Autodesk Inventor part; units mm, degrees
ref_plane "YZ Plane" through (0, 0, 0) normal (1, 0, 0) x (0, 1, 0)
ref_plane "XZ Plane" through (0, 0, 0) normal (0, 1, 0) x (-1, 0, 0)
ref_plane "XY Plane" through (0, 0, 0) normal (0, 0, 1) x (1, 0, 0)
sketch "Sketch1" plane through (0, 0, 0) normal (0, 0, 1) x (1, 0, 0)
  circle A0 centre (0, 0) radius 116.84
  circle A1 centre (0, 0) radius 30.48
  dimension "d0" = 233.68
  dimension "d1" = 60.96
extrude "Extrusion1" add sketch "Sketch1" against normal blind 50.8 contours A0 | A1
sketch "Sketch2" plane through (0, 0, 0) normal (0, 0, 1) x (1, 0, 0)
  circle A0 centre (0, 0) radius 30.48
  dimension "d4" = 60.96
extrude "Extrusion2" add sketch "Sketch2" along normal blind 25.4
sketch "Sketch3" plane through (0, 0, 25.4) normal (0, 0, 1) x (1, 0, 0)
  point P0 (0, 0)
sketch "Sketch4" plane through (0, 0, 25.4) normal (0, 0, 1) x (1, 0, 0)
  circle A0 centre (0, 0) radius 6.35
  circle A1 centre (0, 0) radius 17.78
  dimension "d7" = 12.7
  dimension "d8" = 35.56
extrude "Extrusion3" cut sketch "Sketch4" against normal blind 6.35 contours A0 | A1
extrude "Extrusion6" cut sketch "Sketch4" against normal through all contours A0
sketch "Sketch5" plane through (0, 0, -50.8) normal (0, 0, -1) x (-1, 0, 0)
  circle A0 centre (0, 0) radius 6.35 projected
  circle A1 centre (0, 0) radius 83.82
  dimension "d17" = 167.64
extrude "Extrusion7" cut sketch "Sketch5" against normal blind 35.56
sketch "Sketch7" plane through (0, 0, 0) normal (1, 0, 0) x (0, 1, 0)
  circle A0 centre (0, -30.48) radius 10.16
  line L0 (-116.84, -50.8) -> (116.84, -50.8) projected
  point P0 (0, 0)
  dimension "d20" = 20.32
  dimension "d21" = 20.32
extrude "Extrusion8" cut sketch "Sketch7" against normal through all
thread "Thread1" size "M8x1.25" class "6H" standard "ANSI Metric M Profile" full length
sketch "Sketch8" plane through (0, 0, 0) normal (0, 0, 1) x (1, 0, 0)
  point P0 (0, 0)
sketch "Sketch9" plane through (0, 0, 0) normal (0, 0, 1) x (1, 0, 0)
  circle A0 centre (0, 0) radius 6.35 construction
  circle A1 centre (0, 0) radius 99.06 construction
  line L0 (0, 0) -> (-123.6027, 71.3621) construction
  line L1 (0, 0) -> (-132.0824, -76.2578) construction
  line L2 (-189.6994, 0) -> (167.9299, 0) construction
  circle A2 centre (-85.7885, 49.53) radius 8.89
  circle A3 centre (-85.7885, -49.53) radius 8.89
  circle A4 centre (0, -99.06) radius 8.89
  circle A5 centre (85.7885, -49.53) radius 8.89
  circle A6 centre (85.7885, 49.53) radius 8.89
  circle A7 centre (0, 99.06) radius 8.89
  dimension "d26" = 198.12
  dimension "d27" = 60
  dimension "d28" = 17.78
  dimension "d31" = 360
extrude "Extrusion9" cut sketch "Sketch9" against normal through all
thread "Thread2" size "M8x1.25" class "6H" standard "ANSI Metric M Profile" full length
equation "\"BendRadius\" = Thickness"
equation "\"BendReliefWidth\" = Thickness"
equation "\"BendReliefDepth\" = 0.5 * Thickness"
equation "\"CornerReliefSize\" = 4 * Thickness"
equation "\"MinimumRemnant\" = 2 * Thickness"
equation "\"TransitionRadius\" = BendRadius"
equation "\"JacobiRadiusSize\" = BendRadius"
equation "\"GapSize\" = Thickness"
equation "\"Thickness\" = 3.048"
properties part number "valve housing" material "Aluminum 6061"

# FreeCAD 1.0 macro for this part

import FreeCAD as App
import Part
import Sketcher

V = App.Vector
Q = App.Units.Quantity

doc = App.newDocument("Part")
body = doc.addObject("PartDesign::Body", "Body")

sketch1 = body.newObject("Sketcher::SketchObject", "Sketch")
sketch1.AttachmentSupport = (doc.getObject("XY_Plane"), [""])
sketch1.MapMode = "FlatFace"
sketch1.addGeometry(Part.Circle(V(0, 0, 0), V(0, 0, 1), 117), False)
sketch1.addConstraint([
    Sketcher.Constraint("Coincident", 0, 3, -1, 1),
    Sketcher.Constraint("Diameter", 0, Q("9.2 in")),
])
pad1 = body.newObject("PartDesign::Pad", "Pad")
pad1.Profile = sketch1
pad1.Length = Q("2 in")
pad1.Reversed = True

sketch2 = body.newObject("Sketcher::SketchObject", "Sketch001")
sketch2.AttachmentSupport = (doc.getObject("XY_Plane"), [""])
sketch2.MapMode = "FlatFace"
sketch2.addGeometry(Part.Circle(V(0, 0, 0), V(0, 0, 1), 30), False)
sketch2.addConstraint([
    Sketcher.Constraint("Coincident", 0, 3, -1, 1),
    Sketcher.Constraint("Diameter", 0, Q("2.4 in")),
])
pad2 = body.newObject("PartDesign::Pad", "Pad001")
pad2.Profile = sketch2
pad2.Length = Q("1 in")

sketch3 = body.newObject("Sketcher::SketchObject", "Sketch002")
sketch3.AttachmentSupport = (doc.getObject("XY_Plane"), [""])
sketch3.MapMode = "FlatFace"
sketch3.AttachmentOffset = App.Placement(V(0, 0, 1 * 25.4), App.Rotation())
sketch3.addGeometry(Part.Circle(V(0, 0, 0), V(0, 0, 1), 18), False)
sketch3.addConstraint([
    Sketcher.Constraint("Coincident", 0, 3, -1, 1),
    Sketcher.Constraint("Diameter", 0, Q("1.4 in")),
])
pocket1 = body.newObject("PartDesign::Pocket", "Pocket")
pocket1.Profile = sketch3
pocket1.Length = Q("0.25 in")

sketch4 = body.newObject("Sketcher::SketchObject", "Sketch003")
sketch4.AttachmentSupport = (doc.getObject("XY_Plane"), [""])
sketch4.MapMode = "FlatFace"
sketch4.AttachmentOffset = App.Placement(V(0, 0, 1 * 25.4), App.Rotation())
sketch4.addGeometry(Part.Circle(V(0, 0, 0), V(0, 0, 1), 6), False)
sketch4.addConstraint([
    Sketcher.Constraint("Coincident", 0, 3, -1, 1),
    Sketcher.Constraint("Diameter", 0, Q("0.5 in")),
])
pocket2 = body.newObject("PartDesign::Pocket", "Pocket001")
pocket2.Profile = sketch4
pocket2.Type = "ThroughAll"

sketch5 = body.newObject("Sketcher::SketchObject", "Sketch004")
sketch5.AttachmentSupport = (doc.getObject("XY_Plane"), [""])
sketch5.MapMode = "FlatFace"
sketch5.AttachmentOffset = App.Placement(V(0, 0, -2 * 25.4), App.Rotation())
sketch5.addGeometry([
    Part.Circle(V(0, 0, 0), V(0, 0, 1), 84),
    Part.Circle(V(0, 0, 0), V(0, 0, 1), 6),
], False)
sketch5.addConstraint([
    Sketcher.Constraint("Coincident", 0, 3, -1, 1),
    Sketcher.Constraint("Coincident", 1, 3, -1, 1),
    Sketcher.Constraint("Diameter", 0, Q("6.6 in")),
    Sketcher.Constraint("Diameter", 1, Q("0.5 in")),
])
pocket3 = body.newObject("PartDesign::Pocket", "Pocket002")
pocket3.Profile = sketch5
pocket3.Length = Q("1.4 in")
pocket3.Reversed = True

sketch6 = body.newObject("Sketcher::SketchObject", "Sketch005")
sketch6.AttachmentSupport = (doc.getObject("YZ_Plane"), [""])
sketch6.MapMode = "FlatFace"
sketch6.addGeometry(Part.Circle(V(0, -30, 0), V(0, 0, 1), 10), False)
sketch6.addConstraint([
    Sketcher.Constraint("PointOnObject", 0, 3, -2),
    Sketcher.Constraint("Diameter", 0, Q("0.8 in")),
    Sketcher.Constraint("DistanceY", 0, 3, -1, 1, Q("1.2 in")),
])
pocket4 = body.newObject("PartDesign::Pocket", "Pocket003")
pocket4.Profile = sketch6
pocket4.Type = "ThroughAll"

sketch7 = body.newObject("Sketcher::SketchObject", "Sketch006")
sketch7.AttachmentSupport = (doc.getObject("XY_Plane"), [""])
sketch7.MapMode = "FlatFace"
sketch7.addGeometry([
    Part.Circle(V(-86, 50, 0), V(0, 0, 1), 9),
    Part.Circle(V(-86, -50, 0), V(0, 0, 1), 9),
    Part.Circle(V(0, -99, 0), V(0, 0, 1), 9),
    Part.Circle(V(86, -50, 0), V(0, 0, 1), 9),
    Part.Circle(V(86, 50, 0), V(0, 0, 1), 9),
    Part.Circle(V(0, 99, 0), V(0, 0, 1), 9),
], False)
sketch7.addConstraint([
    Sketcher.Constraint("Equal", 0, 1),
    Sketcher.Constraint("Equal", 1, 2),
    Sketcher.Constraint("Equal", 2, 3),
    Sketcher.Constraint("Equal", 3, 4),
    Sketcher.Constraint("Equal", 4, 5),
    Sketcher.Constraint("Symmetric", 0, 3, 3, 3, -1, 1),
    Sketcher.Constraint("Symmetric", 1, 3, 4, 3, -1, 1),
    Sketcher.Constraint("Symmetric", 2, 3, 5, 3, -1, 1),
    Sketcher.Constraint("Symmetric", 1, 3, 3, 3, -2),
    Sketcher.Constraint("PointOnObject", 2, 3, -2),
    Sketcher.Constraint("Diameter", 0, Q("0.7 in")),
    Sketcher.Constraint("DistanceY", 2, 3, 5, 3, Q("7.8 in")),
    Sketcher.Constraint("DistanceY", 1, 3, 0, 3, Q("3.9 in")),
    Sketcher.Constraint("DistanceX", 1, 3, 3, 3, Q("6.755 in")),
])
pocket5 = body.newObject("PartDesign::Pocket", "Pocket004")
pocket5.Profile = sketch7
pocket5.Type = "ThroughAll"

doc.recompute()
